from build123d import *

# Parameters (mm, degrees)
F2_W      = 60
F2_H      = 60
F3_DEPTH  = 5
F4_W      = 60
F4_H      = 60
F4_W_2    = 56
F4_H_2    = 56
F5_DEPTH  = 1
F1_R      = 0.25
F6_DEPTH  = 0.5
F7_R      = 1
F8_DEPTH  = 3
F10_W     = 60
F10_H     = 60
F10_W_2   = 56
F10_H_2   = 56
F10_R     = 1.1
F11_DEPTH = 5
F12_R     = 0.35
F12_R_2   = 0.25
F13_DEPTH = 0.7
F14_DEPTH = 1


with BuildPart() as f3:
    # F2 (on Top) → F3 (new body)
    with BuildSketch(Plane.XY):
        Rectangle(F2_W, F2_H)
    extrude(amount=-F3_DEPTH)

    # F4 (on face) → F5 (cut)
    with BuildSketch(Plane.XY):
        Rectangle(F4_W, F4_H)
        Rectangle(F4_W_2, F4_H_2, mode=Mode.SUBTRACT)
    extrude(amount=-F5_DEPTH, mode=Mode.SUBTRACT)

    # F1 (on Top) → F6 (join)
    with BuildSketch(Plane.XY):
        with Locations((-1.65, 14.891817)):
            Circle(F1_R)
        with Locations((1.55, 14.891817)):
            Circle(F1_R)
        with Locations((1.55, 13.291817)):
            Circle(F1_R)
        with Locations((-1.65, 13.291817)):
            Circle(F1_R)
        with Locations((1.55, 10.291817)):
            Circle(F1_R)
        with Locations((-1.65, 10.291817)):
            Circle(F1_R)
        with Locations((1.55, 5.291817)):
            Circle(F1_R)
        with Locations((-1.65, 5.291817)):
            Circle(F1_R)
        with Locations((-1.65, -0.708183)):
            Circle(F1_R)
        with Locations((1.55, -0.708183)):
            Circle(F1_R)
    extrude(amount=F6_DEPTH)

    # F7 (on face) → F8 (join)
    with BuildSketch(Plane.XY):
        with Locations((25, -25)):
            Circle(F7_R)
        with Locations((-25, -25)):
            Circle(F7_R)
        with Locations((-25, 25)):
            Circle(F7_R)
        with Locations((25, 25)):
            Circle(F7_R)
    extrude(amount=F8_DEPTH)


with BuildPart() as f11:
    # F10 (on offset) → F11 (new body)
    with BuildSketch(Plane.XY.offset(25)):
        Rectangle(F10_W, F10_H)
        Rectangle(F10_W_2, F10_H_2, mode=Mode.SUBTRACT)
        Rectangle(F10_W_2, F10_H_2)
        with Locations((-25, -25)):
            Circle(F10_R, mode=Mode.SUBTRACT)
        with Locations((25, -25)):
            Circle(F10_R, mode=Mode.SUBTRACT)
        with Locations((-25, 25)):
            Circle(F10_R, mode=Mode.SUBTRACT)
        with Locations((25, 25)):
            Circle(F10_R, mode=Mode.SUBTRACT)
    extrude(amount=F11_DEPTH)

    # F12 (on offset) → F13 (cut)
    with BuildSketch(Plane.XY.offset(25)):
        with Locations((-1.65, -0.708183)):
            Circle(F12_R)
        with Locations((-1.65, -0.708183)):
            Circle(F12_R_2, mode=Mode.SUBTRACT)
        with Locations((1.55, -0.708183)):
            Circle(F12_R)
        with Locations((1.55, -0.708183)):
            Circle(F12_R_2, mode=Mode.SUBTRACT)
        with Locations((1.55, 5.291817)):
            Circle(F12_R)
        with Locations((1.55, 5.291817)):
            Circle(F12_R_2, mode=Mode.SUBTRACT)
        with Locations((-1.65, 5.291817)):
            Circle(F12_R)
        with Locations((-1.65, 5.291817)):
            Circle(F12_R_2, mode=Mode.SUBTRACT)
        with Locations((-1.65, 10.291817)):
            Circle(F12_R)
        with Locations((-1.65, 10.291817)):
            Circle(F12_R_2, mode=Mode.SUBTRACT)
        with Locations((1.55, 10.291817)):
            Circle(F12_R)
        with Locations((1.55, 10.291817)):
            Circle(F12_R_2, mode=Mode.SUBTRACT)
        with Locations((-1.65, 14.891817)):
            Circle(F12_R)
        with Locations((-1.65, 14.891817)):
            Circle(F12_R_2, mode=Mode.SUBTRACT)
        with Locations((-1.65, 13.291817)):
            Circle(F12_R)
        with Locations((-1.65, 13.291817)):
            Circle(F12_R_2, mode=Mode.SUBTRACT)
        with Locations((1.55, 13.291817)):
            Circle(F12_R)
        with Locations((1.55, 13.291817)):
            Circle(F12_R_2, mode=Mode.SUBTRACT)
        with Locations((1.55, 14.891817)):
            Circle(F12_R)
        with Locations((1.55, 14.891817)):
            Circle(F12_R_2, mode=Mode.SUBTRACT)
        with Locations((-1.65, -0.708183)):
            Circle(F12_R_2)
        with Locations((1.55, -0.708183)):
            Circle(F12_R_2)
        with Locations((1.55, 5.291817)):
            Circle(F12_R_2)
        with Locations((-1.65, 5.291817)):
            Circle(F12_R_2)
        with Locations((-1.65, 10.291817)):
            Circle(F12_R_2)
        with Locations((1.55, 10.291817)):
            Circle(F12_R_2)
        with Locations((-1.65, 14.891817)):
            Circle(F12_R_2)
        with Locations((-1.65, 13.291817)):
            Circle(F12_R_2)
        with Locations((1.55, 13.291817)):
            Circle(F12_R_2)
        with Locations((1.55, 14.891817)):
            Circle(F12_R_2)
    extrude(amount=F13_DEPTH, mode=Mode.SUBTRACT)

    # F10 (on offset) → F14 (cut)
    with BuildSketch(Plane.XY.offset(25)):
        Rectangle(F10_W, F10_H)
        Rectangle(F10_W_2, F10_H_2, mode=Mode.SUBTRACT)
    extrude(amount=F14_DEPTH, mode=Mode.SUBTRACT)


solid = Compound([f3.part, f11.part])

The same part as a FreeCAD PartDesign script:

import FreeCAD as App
import Part
import Sketcher
from FreeCAD import Vector
Q = App.Units.Quantity


def add_polygon(sketch, points):
    """Adds a closed chain of lines whose ends are joined by coincident constraints."""
    first, n = sketch.GeometryCount, len(points)
    for a, b in zip(points, points[1:] + points[:1]):
        sketch.addGeometry(Part.LineSegment(App.Vector(*a, 0), App.Vector(*b, 0)), False)
    for i in range(n):
        sketch.addConstraint(Sketcher.Constraint("Coincident", first + i, 2, first + (i + 1) % n, 1))

doc = App.newDocument("Part")
body = doc.addObject("PartDesign::Body", "Body")

# Sketch on XY plane
sketch1 = body.newObject("Sketcher::SketchObject", "Sketch")
sketch1.AttachmentSupport = (doc.getObject("XY_Plane"), [""])
sketch1.MapMode = "FlatFace"
add_polygon(sketch1, [(-30, 30), (-30, -30), (30, -30), (30, 30)])  # lines 0-3
sketch1.addConstraint([
    Sketcher.Constraint("Vertical", 0),
    Sketcher.Constraint("Horizontal", 1),
    Sketcher.Constraint("Vertical", 2),
    Sketcher.Constraint("Horizontal", 3),
    Sketcher.Constraint("Symmetric", 0, 2, 2, 2, -1, 1),
    Sketcher.Constraint("Equal", 3, 0),
    Sketcher.Constraint("DistanceX", 1, 1, 1, 2, Q("60 mm")),
])
pad1 = body.newObject("PartDesign::Pad", "Pad")
pad1.Profile = sketch1
pad1.Length = 5
pad1.Reversed = True

# Sketch on XY plane
sketch2 = body.newObject("Sketcher::SketchObject", "Sketch001")
sketch2.AttachmentSupport = (doc.getObject("XY_Plane"), [""])
sketch2.MapMode = "FlatFace"
add_polygon(sketch2, [(-30, 30), (-30, -30), (30, -30), (30, 30)])  # lines 0-3
add_polygon(sketch2, [(28, -28), (-28, -28), (-28, 28), (28, 28)])  # lines 4-7
sketch2.addConstraint([
    Sketcher.Constraint("Vertical", 0),
    Sketcher.Constraint("Horizontal", 1),
    Sketcher.Constraint("Vertical", 2),
    Sketcher.Constraint("Horizontal", 3),
    Sketcher.Constraint("Horizontal", 4),
    Sketcher.Constraint("Vertical", 5),
    Sketcher.Constraint("Horizontal", 6),
    Sketcher.Constraint("Vertical", 7),
    Sketcher.Constraint("Symmetric", 0, 2, 2, 2, -1, 1),
    Sketcher.Constraint("Symmetric", 4, 2, 6, 2, -1, 1),
    Sketcher.Constraint("Equal", 3, 0),
    Sketcher.Constraint("Equal", 6, 5),
    Sketcher.Constraint("DistanceX", 1, 1, 1, 2, Q("60 mm")),
    Sketcher.Constraint("DistanceX", 4, 2, 4, 1, Q("56 mm")),
])
pocket1 = body.newObject("PartDesign::Pocket", "Pocket")
pocket1.Profile = sketch2
pocket1.Length = 1

# Sketch on XY plane
sketch3 = body.newObject("Sketcher::SketchObject", "Sketch002")
sketch3.AttachmentSupport = (doc.getObject("XY_Plane"), [""])
sketch3.MapMode = "FlatFace"
sketch3.addGeometry([
    Part.Circle(Vector(-1.65, 14.89, 0), Vector(0, 0, 1), 0.25),  # 0
    Part.Circle(Vector(1.55, 14.89, 0), Vector(0, 0, 1), 0.25),  # 1
    Part.Circle(Vector(1.55, 13.29, 0), Vector(0, 0, 1), 0.25),  # 2
    Part.Circle(Vector(-1.65, 13.29, 0), Vector(0, 0, 1), 0.25),  # 3
    Part.Circle(Vector(1.55, 10.29, 0), Vector(0, 0, 1), 0.25),  # 4
    Part.Circle(Vector(-1.65, 10.29, 0), Vector(0, 0, 1), 0.25),  # 5
    Part.Circle(Vector(1.55, 5.29, 0), Vector(0, 0, 1), 0.25),  # 6
    Part.Circle(Vector(-1.65, 5.29, 0), Vector(0, 0, 1), 0.25),  # 7
    Part.Circle(Vector(-1.65, -0.71, 0), Vector(0, 0, 1), 0.25),  # 8
    Part.Circle(Vector(1.55, -0.71, 0), Vector(0, 0, 1), 0.25),  # 9
], False)
sketch3.addConstraint([
    Sketcher.Constraint("Equal", 0, 1),
    Sketcher.Constraint("Equal", 1, 2),
    Sketcher.Constraint("Equal", 2, 3),
    Sketcher.Constraint("Equal", 3, 4),
    Sketcher.Constraint("Equal", 4, 5),
    Sketcher.Constraint("Equal", 5, 6),
    Sketcher.Constraint("Equal", 6, 7),
    Sketcher.Constraint("Equal", 7, 8),
    Sketcher.Constraint("Equal", 8, 9),
    Sketcher.Constraint("Horizontal", 0, 3, 1, 3),
    Sketcher.Constraint("Horizontal", 2, 3, 3, 3),
    Sketcher.Constraint("Horizontal", 4, 3, 5, 3),
    Sketcher.Constraint("Horizontal", 6, 3, 7, 3),
    Sketcher.Constraint("Horizontal", 8, 3, 9, 3),
    Sketcher.Constraint("Vertical", 1, 3, 2, 3),
    Sketcher.Constraint("Vertical", 0, 3, 3, 3),
    Sketcher.Constraint("Vertical", 2, 3, 4, 3),
    Sketcher.Constraint("Vertical", 3, 3, 5, 3),
    Sketcher.Constraint("Vertical", 4, 3, 6, 3),
    Sketcher.Constraint("Vertical", 5, 3, 7, 3),
    Sketcher.Constraint("Vertical", 7, 3, 8, 3),
    Sketcher.Constraint("Vertical", 6, 3, 9, 3),
    Sketcher.Constraint("Diameter", 0, Q("0.5 mm")),
    Sketcher.Constraint("DistanceY", 4, 3, 2, 3, Q("3 mm")),
    Sketcher.Constraint("DistanceY", 6, 3, 4, 3, Q("5 mm")),
    Sketcher.Constraint("DistanceY", 8, 3, 7, 3, Q("6 mm")),
    Sketcher.Constraint("DistanceX", 0, 3, 1, 3, Q("3.2 mm")),
    Sketcher.Constraint("DistanceY", 2, 3, 1, 3, Q("1.6 mm")),
    Sketcher.Constraint("DistanceX", 0, 3, -1, 1, Q("1.65 mm")),
    Sketcher.Constraint("DistanceY", -1, 1, 0, 3, Q("14.891817 mm")),
])
pad2 = body.newObject("PartDesign::Pad", "Pad001")
pad2.Profile = sketch3
pad2.Length = 0.5

# Sketch on XY plane
sketch4 = body.newObject("Sketcher::SketchObject", "Sketch003")
sketch4.AttachmentSupport = (doc.getObject("XY_Plane"), [""])
sketch4.MapMode = "FlatFace"
sketch4.addGeometry([
    Part.Circle(Vector(25, -25, 0), Vector(0, 0, 1), 1),
    Part.Circle(Vector(-25, -25, 0), Vector(0, 0, 1), 1),
    Part.Circle(Vector(-25, 25, 0), Vector(0, 0, 1), 1),
    Part.Circle(Vector(25, 25, 0), Vector(0, 0, 1), 1),
], False)
sketch4.addConstraint([
    Sketcher.Constraint("Equal", 0, 1),
    Sketcher.Constraint("Equal", 1, 2),
    Sketcher.Constraint("Equal", 2, 3),
    Sketcher.Constraint("Symmetric", 0, 3, 2, 3, -1, 1),
    Sketcher.Constraint("Symmetric", 1, 3, 3, 3, -1, 1),
    Sketcher.Constraint("Symmetric", 0, 3, 1, 3, -2),
    Sketcher.Constraint("Diameter", 0, Q("2 mm")),
    Sketcher.Constraint("DistanceX", -1, 1, 0, 3, Q("25 mm")),
    Sketcher.Constraint("DistanceY", 0, 3, -1, 1, Q("25 mm")),
])
pad3 = body.newObject("PartDesign::Pad", "Pad002")
pad3.Profile = sketch4
pad3.Length = 3
body2 = doc.addObject("PartDesign::Body", "Body001")

# Sketch on XY plane
sketch5 = body2.newObject("Sketcher::SketchObject", "Sketch004")
sketch5.AttachmentSupport = (doc.getObject("XY_Plane001"), [""])
sketch5.MapMode = "FlatFace"
sketch5.AttachmentOffset = App.Placement(Vector(0, 0, 25), App.Rotation())
add_polygon(sketch5, [(-30, 30), (-30, -30), (30, -30), (30, 30)])  # lines 0-3
sketch5.addGeometry(Part.Circle(Vector(-25, -25, 0), Vector(0, 0, 1), 1.1), False)  # 4
sketch5.addGeometry(Part.Circle(Vector(25, -25, 0), Vector(0, 0, 1), 1.1), False)  # 5
sketch5.addGeometry(Part.Circle(Vector(-25, 25, 0), Vector(0, 0, 1), 1.1), False)  # 6
sketch5.addGeometry(Part.Circle(Vector(25, 25, 0), Vector(0, 0, 1), 1.1), False)  # 7
sketch5.addConstraint([
    Sketcher.Constraint("Vertical", 0),
    Sketcher.Constraint("Horizontal", 1),
    Sketcher.Constraint("Vertical", 2),
    Sketcher.Constraint("Horizontal", 3),
    Sketcher.Constraint("Equal", 4, 5),
    Sketcher.Constraint("Equal", 5, 6),
    Sketcher.Constraint("Equal", 6, 7),
    Sketcher.Constraint("Symmetric", 5, 3, 6, 3, -1, 1),
    Sketcher.Constraint("Symmetric", 4, 3, 7, 3, -1, 1),
    Sketcher.Constraint("Symmetric", 0, 2, 2, 2, -1, 1),
    Sketcher.Constraint("Symmetric", 4, 3, 5, 3, -2),
    Sketcher.Constraint("Equal", 3, 0),
    Sketcher.Constraint("Diameter", 4, Q("2.2 mm")),
    Sketcher.Constraint("DistanceX", 1, 1, 1, 2, Q("60 mm")),
    Sketcher.Constraint("DistanceX", 4, 3, -1, 1, Q("25 mm")),
    Sketcher.Constraint("DistanceY", 4, 3, -1, 1, Q("25 mm")),
])
pad4 = body2.newObject("PartDesign::Pad", "Pad003")
pad4.Profile = sketch5
pad4.Length = 5

# Sketch on XY plane
sketch6 = body2.newObject("Sketcher::SketchObject", "Sketch005")
sketch6.AttachmentSupport = (doc.getObject("XY_Plane001"), [""])
sketch6.MapMode = "FlatFace"
sketch6.AttachmentOffset = App.Placement(Vector(0, 0, 25), App.Rotation())
sketch6.addGeometry([
    Part.Circle(Vector(-1.65, -0.71, 0), Vector(0, 0, 1), 0.35),  # 0
    Part.Circle(Vector(1.55, -0.71, 0), Vector(0, 0, 1), 0.35),  # 1
    Part.Circle(Vector(1.55, 5.29, 0), Vector(0, 0, 1), 0.35),  # 2
    Part.Circle(Vector(-1.65, 5.29, 0), Vector(0, 0, 1), 0.35),  # 3
    Part.Circle(Vector(-1.65, 10.29, 0), Vector(0, 0, 1), 0.35),  # 4
    Part.Circle(Vector(1.55, 10.29, 0), Vector(0, 0, 1), 0.35),  # 5
    Part.Circle(Vector(-1.65, 14.89, 0), Vector(0, 0, 1), 0.35),  # 6
    Part.Circle(Vector(-1.65, 13.29, 0), Vector(0, 0, 1), 0.35),  # 7
    Part.Circle(Vector(1.55, 13.29, 0), Vector(0, 0, 1), 0.35),  # 8
    Part.Circle(Vector(1.55, 14.89, 0), Vector(0, 0, 1), 0.35),  # 9
], False)
sketch6.addConstraint([
    Sketcher.Constraint("Equal", 0, 1),
    Sketcher.Constraint("Equal", 1, 2),
    Sketcher.Constraint("Equal", 2, 3),
    Sketcher.Constraint("Equal", 3, 4),
    Sketcher.Constraint("Equal", 4, 5),
    Sketcher.Constraint("Equal", 5, 6),
    Sketcher.Constraint("Equal", 6, 7),
    Sketcher.Constraint("Equal", 7, 8),
    Sketcher.Constraint("Equal", 8, 9),
    Sketcher.Constraint("Horizontal", 0, 3, 1, 3),
    Sketcher.Constraint("Horizontal", 2, 3, 3, 3),
    Sketcher.Constraint("Horizontal", 4, 3, 5, 3),
    Sketcher.Constraint("Horizontal", 7, 3, 8, 3),
    Sketcher.Constraint("Horizontal", 6, 3, 9, 3),
    Sketcher.Constraint("Vertical", 1, 3, 2, 3),
    Sketcher.Constraint("Vertical", 0, 3, 3, 3),
    Sketcher.Constraint("Vertical", 3, 3, 4, 3),
    Sketcher.Constraint("Vertical", 2, 3, 5, 3),
    Sketcher.Constraint("Vertical", 4, 3, 6, 3),
    Sketcher.Constraint("Vertical", 6, 3, 7, 3),
    Sketcher.Constraint("Vertical", 5, 3, 8, 3),
    Sketcher.Constraint("Vertical", 8, 3, 9, 3),
    Sketcher.Constraint("Diameter", 0, Q("0.7 mm")),
    Sketcher.Constraint("DistanceY", 1, 3, 2, 3, Q("6 mm")),
    Sketcher.Constraint("DistanceY", 3, 3, 4, 3, Q("5 mm")),
    Sketcher.Constraint("DistanceY", 4, 3, 7, 3, Q("3 mm")),
    Sketcher.Constraint("DistanceX", 0, 3, 1, 3, Q("3.2 mm")),
    Sketcher.Constraint("DistanceY", 4, 3, 6, 3, Q("4.6 mm")),
    Sketcher.Constraint("DistanceX", 0, 3, -1, 1, Q("1.65 mm")),
    Sketcher.Constraint("DistanceY", 0, 3, -1, 1, Q("0.708183 mm")),
])
pocket2 = body2.newObject("PartDesign::Pocket", "Pocket001")
pocket2.Profile = sketch6
pocket2.Length = 0.7
pocket2.Reversed = True

# Sketch on XY plane
sketch7 = body2.newObject("Sketcher::SketchObject", "Sketch006")
sketch7.AttachmentSupport = (doc.getObject("XY_Plane001"), [""])
sketch7.MapMode = "FlatFace"
sketch7.AttachmentOffset = App.Placement(Vector(0, 0, 25), App.Rotation())
add_polygon(sketch7, [(-30, 30), (-30, -30), (30, -30), (30, 30)])  # lines 0-3
add_polygon(sketch7, [(28, -28), (-28, -28), (-28, 28), (28, 28)])  # lines 4-7
sketch7.addConstraint([
    Sketcher.Constraint("Vertical", 0),
    Sketcher.Constraint("Horizontal", 1),
    Sketcher.Constraint("Vertical", 2),
    Sketcher.Constraint("Horizontal", 3),
    Sketcher.Constraint("Horizontal", 4),
    Sketcher.Constraint("Vertical", 5),
    Sketcher.Constraint("Horizontal", 6),
    Sketcher.Constraint("Vertical", 7),
    Sketcher.Constraint("Symmetric", 0, 2, 2, 2, -1, 1),
    Sketcher.Constraint("Symmetric", 4, 2, 6, 2, -1, 1),
    Sketcher.Constraint("Equal", 3, 0),
    Sketcher.Constraint("Equal", 6, 5),
    Sketcher.Constraint("DistanceX", 1, 1, 1, 2, Q("60 mm")),
    Sketcher.Constraint("DistanceX", 4, 2, 4, 1, Q("56 mm")),
])
pocket3 = body2.newObject("PartDesign::Pocket", "Pocket002")
pocket3.Profile = sketch7
pocket3.Length = 1
pocket3.Reversed = True

doc.recompute()
